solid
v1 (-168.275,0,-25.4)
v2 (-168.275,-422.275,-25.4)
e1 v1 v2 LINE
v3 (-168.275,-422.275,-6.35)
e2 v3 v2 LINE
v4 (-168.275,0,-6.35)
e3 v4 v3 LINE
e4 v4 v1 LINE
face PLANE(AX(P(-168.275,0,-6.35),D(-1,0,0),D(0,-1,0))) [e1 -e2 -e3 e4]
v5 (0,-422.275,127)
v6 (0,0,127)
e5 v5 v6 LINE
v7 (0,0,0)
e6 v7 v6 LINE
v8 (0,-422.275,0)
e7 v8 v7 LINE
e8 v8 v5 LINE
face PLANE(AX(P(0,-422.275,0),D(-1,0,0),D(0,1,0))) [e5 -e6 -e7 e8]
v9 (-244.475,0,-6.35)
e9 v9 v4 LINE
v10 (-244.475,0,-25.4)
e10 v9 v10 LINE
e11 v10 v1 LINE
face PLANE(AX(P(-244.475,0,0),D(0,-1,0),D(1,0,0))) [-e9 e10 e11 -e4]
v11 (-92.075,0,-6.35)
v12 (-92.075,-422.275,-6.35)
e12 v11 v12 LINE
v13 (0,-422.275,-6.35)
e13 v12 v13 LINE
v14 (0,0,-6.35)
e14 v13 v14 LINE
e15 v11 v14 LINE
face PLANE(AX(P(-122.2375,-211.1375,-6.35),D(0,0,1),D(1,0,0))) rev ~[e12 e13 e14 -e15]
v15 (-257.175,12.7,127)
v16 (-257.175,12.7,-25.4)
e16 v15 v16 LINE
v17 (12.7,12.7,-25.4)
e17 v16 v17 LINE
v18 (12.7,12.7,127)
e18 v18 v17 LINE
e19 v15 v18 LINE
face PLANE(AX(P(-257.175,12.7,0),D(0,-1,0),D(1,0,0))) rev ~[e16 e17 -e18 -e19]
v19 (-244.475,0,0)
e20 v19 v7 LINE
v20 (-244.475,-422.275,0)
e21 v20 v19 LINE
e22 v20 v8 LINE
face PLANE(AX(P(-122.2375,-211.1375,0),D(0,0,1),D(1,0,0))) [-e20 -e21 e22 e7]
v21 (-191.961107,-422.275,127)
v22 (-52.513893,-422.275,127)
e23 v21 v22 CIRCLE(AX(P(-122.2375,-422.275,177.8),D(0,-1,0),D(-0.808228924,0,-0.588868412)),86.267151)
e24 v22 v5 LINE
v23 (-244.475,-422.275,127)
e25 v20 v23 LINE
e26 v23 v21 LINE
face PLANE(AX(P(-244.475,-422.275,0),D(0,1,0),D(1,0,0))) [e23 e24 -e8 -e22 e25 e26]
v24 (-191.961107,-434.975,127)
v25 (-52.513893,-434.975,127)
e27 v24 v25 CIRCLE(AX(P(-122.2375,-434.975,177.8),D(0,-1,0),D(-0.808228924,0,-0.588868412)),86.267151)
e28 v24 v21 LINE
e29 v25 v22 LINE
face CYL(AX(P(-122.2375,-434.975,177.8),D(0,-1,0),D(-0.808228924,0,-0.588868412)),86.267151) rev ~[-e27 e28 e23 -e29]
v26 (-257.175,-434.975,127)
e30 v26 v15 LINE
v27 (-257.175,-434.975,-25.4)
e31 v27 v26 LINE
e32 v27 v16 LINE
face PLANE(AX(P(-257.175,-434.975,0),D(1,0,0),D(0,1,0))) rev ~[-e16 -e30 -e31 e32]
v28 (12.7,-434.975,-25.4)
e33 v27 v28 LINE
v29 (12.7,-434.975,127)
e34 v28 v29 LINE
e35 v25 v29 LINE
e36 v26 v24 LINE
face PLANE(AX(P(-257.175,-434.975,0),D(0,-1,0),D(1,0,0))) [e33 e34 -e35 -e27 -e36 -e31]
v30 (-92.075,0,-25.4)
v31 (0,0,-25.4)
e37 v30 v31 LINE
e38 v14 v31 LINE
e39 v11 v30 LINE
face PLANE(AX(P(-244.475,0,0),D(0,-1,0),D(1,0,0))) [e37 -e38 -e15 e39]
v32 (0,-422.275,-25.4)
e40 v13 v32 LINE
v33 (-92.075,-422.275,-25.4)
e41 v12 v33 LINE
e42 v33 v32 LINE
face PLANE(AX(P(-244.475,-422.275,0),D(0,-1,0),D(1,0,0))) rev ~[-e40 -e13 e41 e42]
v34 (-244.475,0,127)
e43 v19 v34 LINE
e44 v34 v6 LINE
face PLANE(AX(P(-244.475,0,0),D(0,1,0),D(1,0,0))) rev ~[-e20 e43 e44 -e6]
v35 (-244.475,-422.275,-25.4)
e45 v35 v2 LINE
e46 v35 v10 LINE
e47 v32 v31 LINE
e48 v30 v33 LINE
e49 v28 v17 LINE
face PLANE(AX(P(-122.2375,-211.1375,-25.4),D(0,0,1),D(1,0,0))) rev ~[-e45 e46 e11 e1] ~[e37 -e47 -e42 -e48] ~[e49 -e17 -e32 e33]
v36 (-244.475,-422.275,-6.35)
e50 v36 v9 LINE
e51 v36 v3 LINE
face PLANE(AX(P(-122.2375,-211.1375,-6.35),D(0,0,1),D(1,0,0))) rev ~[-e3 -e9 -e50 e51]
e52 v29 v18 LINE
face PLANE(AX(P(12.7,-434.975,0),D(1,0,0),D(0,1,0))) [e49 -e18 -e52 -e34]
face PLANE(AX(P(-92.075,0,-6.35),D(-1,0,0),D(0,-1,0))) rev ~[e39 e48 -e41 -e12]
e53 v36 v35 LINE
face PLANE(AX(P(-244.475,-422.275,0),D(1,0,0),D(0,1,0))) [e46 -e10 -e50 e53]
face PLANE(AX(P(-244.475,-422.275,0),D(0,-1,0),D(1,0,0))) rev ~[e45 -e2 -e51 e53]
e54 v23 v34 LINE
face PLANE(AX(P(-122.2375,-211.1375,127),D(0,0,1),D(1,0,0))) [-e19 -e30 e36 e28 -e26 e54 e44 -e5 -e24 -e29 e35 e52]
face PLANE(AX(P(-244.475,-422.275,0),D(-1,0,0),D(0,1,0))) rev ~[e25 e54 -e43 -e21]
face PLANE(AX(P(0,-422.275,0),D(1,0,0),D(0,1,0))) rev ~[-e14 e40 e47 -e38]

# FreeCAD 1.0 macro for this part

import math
import FreeCAD as App
import Part
import Sketcher

V = App.Vector
Q = App.Units.Quantity


def add_polygon(sketch, points):
    """Adds a closed chain of lines whose ends are joined by coincident constraints."""
    first, n = sketch.GeometryCount, len(points)
    for a, b in zip(points, points[1:] + points[:1]):
        sketch.addGeometry(Part.LineSegment(App.Vector(*a, 0), App.Vector(*b, 0)), False)
    for i in range(n):
        sketch.addConstraint(Sketcher.Constraint("Coincident", first + i, 2, first + (i + 1) % n, 1))

doc = App.newDocument("Part")
body = doc.addObject("PartDesign::Body", "Body")

sketch1 = doc.addObject("Sketcher::SketchObject", "Sketch")
body.addObject(sketch1)
sketch1.AttachmentSupport = (doc.XY_Plane, [""])
sketch1.MapMode = "FlatFace"
add_polygon(sketch1, [(-244.475, 0), (-244.475, -422.275), (0, -422.275), (0, 0)])
sketch1.addConstraint(Sketcher.Constraint("Vertical", 0))
sketch1.addConstraint(Sketcher.Constraint("Horizontal", 1))
sketch1.addConstraint(Sketcher.Constraint("Vertical", 2))
sketch1.addConstraint(Sketcher.Constraint("Horizontal", 3))
sketch1.addConstraint(Sketcher.Constraint("Coincident", 2, 2, -1, 1))
sketch1.addConstraint(Sketcher.Constraint("DistanceX", 1, 1, 1, 2, Q("9.625 in")))
sketch1.addConstraint(Sketcher.Constraint("DistanceY", 0, 2, 0, 1, Q("16.625 in")))
pad1 = doc.addObject("PartDesign::Pad", "Pad")
body.addObject(pad1)
pad1.Profile = sketch1
pad1.Length = Q("0.25 in")
pad1.Reversed = True

sketch2 = doc.addObject("Sketcher::SketchObject", "Sketch001")
body.addObject(sketch2)
sketch2.AttachmentSupport = (doc.XY_Plane, [""])
sketch2.MapMode = "FlatFace"
add_polygon(sketch2, [(-257.175, 12.7), (-257.175, -434.975), (12.7, -434.975), (12.7, 12.7)])
add_polygon(sketch2, [(0, -422.275), (-244.475, -422.275), (-244.475, 0), (0, 0)])
sketch2.addConstraint(Sketcher.Constraint("Vertical", 0))
sketch2.addConstraint(Sketcher.Constraint("Horizontal", 1))
sketch2.addConstraint(Sketcher.Constraint("Vertical", 2))
sketch2.addConstraint(Sketcher.Constraint("Horizontal", 3))
sketch2.addConstraint(Sketcher.Constraint("Horizontal", 4))
sketch2.addConstraint(Sketcher.Constraint("Vertical", 5))
sketch2.addConstraint(Sketcher.Constraint("Horizontal", 6))
sketch2.addConstraint(Sketcher.Constraint("Vertical", 7))
sketch2.addConstraint(Sketcher.Constraint("Coincident", 6, 2, -1, 1))
sketch2.addConstraint(Sketcher.Constraint("DistanceX", -1, 1, 1, 2, Q("0.5 in")))
sketch2.addConstraint(Sketcher.Constraint("DistanceY", -1, 1, 2, 2, Q("0.5 in")))
sketch2.addConstraint(Sketcher.Constraint("DistanceX", 0, 2, 4, 2, Q("0.5 in")))
sketch2.addConstraint(Sketcher.Constraint("DistanceY", 0, 2, 4, 2, Q("0.5 in")))
sketch2.addConstraint(Sketcher.Constraint("DistanceX", 1, 1, 1, 2, Q("10.625 in")))
sketch2.addConstraint(Sketcher.Constraint("DistanceY", 0, 2, 0, 1, Q("17.625 in")))
pad2 = doc.addObject("PartDesign::Pad", "Pad001")
body.addObject(pad2)
pad2.Profile = sketch2
pad2.Type = "TwoLengths"
pad2.Length = Q("5 in")
pad2.Length2 = Q("1 in")

sketch3 = doc.addObject("Sketcher::SketchObject", "Sketch002")
body.addObject(sketch3)
sketch3.AttachmentSupport = (doc.XY_Plane, [""])
sketch3.MapMode = "FlatFace"
sketch3.AttachmentOffset = App.Placement(V(0, 0, -0.25 * 25.4), App.Rotation())
add_polygon(sketch3, [(-168.275, -422.275), (-168.275, 0), (-92.075, 0), (-92.075, -422.275)])
sketch3.addConstraint(Sketcher.Constraint("Vertical", 0))
sketch3.addConstraint(Sketcher.Constraint("Horizontal", 1))
sketch3.addConstraint(Sketcher.Constraint("Vertical", 2))
sketch3.addConstraint(Sketcher.Constraint("Horizontal", 3))
sketch3.addConstraint(Sketcher.Constraint("PointOnObject", 0, 2, -1))
sketch3.addConstraint(Sketcher.Constraint("DistanceX", 1, 1, 1, 2, Q("3 in")))
sketch3.addConstraint(Sketcher.Constraint("DistanceY", 0, 1, 0, 2, Q("16.625 in")))
sketch3.addConstraint(Sketcher.Constraint("DistanceX", 0, 2, -1, 1, Q("6.625 in")))
pad3 = doc.addObject("PartDesign::Pad", "Pad002")
body.addObject(pad3)
pad3.Profile = sketch3
pad3.Length = Q("0.75 in")
pad3.Reversed = True

sketch4 = doc.addObject("Sketcher::SketchObject", "Sketch003")
body.addObject(sketch4)
sketch4.AttachmentSupport = (doc.XZ_Plane, [""])
sketch4.MapMode = "FlatFace"
sketch4.AttachmentOffset = App.Placement(V(0, 0, 17.125 * 25.4), App.Rotation())
sketch4.addGeometry(Part.LineSegment(V(-38.1, 158.75, 0), V(-206.375, 158.75, 0)), False)
sketch4.addGeometry(Part.ArcOfCircle(Part.Circle(V(-122.237519, 177.799992, 0), V(0, 0, 1), 86.267131), math.radians(-167.24247), math.radians(-143.923249)), False)
sketch4.addGeometry(Part.ArcOfCircle(Part.Circle(V(-122.2375, 177.8, 0), V(0, 0, 1), 86.267151), math.radians(-143.923252), math.radians(-36.076748)), False)
sketch4.addGeometry(Part.ArcOfCircle(Part.Circle(V(-122.237481, 177.799992, 0), V(0, 0, 1), 86.267131), math.radians(-36.076751), math.radians(-12.75753)), False)
sketch4.addConstraint(Sketcher.Constraint("Coincident", 0, 2, 1, 1))
sketch4.addConstraint(Sketcher.Constraint("Tangent", 1, 2, 2, 1))
sketch4.addConstraint(Sketcher.Constraint("Tangent", 2, 2, 3, 1))
sketch4.addConstraint(Sketcher.Constraint("Coincident", 3, 2, 0, 1))
sketch4.addConstraint(Sketcher.Constraint("Horizontal", 0))
sketch4.addConstraint(Sketcher.Constraint("Equal", 1, 3))
sketch4.addConstraint(Sketcher.Constraint("Horizontal", 1, 2, 2, 2))
sketch4.addConstraint(Sketcher.Constraint("DistanceY", -1, 1, 2, 3, Q("7 in")))
sketch4.addConstraint(Sketcher.Constraint("DistanceY", -1, 1, 1, 2, Q("5 in")))
sketch4.addConstraint(Sketcher.Constraint("DistanceX", 3, 2, -1, 1, Q("1.5 in")))
sketch4.addConstraint(Sketcher.Constraint("DistanceX", 0, 2, 0, 1, Q("6.625 in")))
sketch4.addConstraint(Sketcher.Constraint("DistanceY", -1, 1, 0, 2, Q("6.25 in")))
sketch4.addConstraint(Sketcher.Constraint("Radius", 1, Q("86.267131 mm")))
pocket1 = doc.addObject("PartDesign::Pocket", "Pocket")
body.addObject(pocket1)
pocket1.Profile = sketch4
pocket1.Length = Q("1 in")

doc.recompute()
